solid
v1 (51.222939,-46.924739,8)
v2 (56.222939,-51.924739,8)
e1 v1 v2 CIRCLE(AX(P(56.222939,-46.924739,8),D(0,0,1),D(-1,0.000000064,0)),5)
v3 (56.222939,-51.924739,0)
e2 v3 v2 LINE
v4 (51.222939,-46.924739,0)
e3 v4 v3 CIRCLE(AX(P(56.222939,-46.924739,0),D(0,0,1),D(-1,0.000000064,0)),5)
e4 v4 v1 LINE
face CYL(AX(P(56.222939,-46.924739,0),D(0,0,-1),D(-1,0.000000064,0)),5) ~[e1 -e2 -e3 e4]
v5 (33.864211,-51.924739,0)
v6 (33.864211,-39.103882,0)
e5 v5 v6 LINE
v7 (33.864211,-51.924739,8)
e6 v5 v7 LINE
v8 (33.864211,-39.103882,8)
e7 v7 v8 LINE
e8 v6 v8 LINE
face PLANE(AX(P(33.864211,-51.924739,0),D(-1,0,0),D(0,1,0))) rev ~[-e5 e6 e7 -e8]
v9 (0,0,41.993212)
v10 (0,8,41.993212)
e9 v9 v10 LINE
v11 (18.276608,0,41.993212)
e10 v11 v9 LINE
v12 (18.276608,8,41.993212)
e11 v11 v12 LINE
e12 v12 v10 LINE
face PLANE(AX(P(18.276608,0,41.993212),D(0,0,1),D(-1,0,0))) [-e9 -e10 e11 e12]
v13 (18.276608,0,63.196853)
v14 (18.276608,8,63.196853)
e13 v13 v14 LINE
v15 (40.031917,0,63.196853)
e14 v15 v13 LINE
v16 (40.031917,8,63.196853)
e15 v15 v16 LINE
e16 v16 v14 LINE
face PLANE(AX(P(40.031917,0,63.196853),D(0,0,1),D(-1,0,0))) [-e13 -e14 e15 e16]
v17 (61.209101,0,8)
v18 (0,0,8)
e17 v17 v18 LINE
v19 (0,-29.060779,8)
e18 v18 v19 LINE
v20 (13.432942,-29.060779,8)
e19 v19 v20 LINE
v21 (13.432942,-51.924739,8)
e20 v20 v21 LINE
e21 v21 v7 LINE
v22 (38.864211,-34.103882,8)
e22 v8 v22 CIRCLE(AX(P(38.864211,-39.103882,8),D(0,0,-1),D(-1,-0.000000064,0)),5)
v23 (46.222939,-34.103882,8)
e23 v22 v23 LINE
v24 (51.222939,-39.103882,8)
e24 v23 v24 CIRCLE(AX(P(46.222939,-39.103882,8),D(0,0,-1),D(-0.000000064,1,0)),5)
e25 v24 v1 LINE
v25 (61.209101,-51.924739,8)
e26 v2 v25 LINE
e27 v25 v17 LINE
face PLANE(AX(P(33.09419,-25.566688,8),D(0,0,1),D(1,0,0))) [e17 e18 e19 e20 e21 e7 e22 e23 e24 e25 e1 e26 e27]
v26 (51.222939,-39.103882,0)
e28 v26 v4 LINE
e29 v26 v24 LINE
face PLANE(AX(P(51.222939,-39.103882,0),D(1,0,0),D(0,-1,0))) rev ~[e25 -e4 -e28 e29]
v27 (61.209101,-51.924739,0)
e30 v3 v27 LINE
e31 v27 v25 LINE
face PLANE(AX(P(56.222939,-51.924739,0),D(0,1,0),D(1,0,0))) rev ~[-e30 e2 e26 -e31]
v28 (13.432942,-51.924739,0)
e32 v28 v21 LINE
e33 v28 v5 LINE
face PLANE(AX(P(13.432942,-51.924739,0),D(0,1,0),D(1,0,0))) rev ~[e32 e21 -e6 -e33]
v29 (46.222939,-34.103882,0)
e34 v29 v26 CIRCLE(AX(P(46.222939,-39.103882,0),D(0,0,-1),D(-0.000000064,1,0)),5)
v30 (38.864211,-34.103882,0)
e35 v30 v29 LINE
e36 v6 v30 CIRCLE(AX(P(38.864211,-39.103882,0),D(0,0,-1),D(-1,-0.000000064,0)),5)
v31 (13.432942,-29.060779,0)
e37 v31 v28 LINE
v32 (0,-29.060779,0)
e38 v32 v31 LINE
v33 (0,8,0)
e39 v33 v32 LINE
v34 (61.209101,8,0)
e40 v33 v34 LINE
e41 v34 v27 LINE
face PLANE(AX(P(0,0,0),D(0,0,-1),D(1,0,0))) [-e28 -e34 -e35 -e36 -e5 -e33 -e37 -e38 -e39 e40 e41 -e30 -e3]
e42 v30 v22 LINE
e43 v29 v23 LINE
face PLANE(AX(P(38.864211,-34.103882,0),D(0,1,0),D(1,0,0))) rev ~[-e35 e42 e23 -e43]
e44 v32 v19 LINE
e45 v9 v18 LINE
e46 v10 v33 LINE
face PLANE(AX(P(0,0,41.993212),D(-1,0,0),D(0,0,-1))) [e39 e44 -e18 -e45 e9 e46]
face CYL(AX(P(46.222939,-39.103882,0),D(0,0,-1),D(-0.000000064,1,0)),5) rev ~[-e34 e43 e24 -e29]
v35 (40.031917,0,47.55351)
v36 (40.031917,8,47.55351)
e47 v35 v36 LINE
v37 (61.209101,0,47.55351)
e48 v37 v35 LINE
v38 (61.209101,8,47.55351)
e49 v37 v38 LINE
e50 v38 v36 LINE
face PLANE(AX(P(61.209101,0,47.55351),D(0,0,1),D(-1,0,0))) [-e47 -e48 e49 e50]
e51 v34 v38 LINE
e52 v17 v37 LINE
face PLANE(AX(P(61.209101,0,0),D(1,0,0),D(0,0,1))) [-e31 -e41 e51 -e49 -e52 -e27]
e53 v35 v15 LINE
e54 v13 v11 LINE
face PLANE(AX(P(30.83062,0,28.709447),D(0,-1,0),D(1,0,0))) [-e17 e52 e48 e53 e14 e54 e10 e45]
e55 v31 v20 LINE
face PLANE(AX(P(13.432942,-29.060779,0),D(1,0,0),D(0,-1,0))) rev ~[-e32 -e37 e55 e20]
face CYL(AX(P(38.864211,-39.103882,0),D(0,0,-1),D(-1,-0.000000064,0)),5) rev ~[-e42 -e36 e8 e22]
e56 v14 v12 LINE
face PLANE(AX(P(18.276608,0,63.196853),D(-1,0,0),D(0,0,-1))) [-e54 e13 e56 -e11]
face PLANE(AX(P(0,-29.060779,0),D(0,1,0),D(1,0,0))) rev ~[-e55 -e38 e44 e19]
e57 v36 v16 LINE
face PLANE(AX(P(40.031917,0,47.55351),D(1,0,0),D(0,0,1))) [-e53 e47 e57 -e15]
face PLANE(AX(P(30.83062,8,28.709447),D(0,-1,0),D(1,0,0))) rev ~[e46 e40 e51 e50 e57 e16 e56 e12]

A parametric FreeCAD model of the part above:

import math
import FreeCAD as App
import Part
import Sketcher
Q = App.Units.Quantity

doc = App.newDocument("Part")
params = doc.addObject("Spreadsheet::Sheet", "Params")
for row, (alias, value) in enumerate([
    ("sketch1_radius", "5 mm"),
    ("pad1_length", "8 mm"),
    ("pad2_length", "8 mm"),
], start=1):
    params.set(f"A{row}", alias)
    params.set(f"B{row}", "=" + value)
    params.setAlias(f"B{row}", alias)

body = doc.addObject("PartDesign::Body", "Body")

sketch1 = body.newObject("Sketcher::SketchObject", "Sketch")
sketch1.AttachmentSupport = (doc.getObject("XY_Plane"), [""])
sketch1.MapMode = "FlatFace"
sketch1.addGeometry([
    Part.LineSegment(App.Vector(61.2, 0, 0), App.Vector(0, 0, 0)),
    Part.LineSegment(App.Vector(0, 0, 0), App.Vector(0, -29.1, 0)),
    Part.LineSegment(App.Vector(0, -29.1, 0), App.Vector(13.4, -29.1, 0)),
    Part.LineSegment(App.Vector(13.4, -29.1, 0), App.Vector(13.4, -51.9, 0)),
    Part.LineSegment(App.Vector(13.4, -51.9, 0), App.Vector(33.9, -51.9, 0)),
    Part.LineSegment(App.Vector(33.9, -51.9, 0), App.Vector(33.9, -39.1, 0)),
    Part.ArcOfCircle(Part.Circle(App.Vector(38.9, -39.1, 0), App.Vector(0, 0, 1), 5), math.radians(90), math.radians(180)),
    Part.LineSegment(App.Vector(38.9, -34.1, 0), App.Vector(46.2, -34.1, 0)),
    Part.ArcOfCircle(Part.Circle(App.Vector(46.2, -39.1, 0), App.Vector(0, 0, 1), 5), math.radians(0), math.radians(90)),
    Part.LineSegment(App.Vector(51.2, -39.1, 0), App.Vector(51.2, -46.9, 0)),
    Part.ArcOfCircle(Part.Circle(App.Vector(56.2, -46.9, 0), App.Vector(0, 0, 1), 5), math.radians(180), math.radians(270)),
    Part.LineSegment(App.Vector(56.2, -51.9, 0), App.Vector(61.2, -51.9, 0)),
    Part.LineSegment(App.Vector(61.2, -51.9, 0), App.Vector(61.2, 0, 0)),
], False)
sketch1.addConstraint([
    Sketcher.Constraint("Coincident", 0, 2, 1, 1),
    Sketcher.Constraint("Coincident", 1, 2, 2, 1),
    Sketcher.Constraint("Coincident", 2, 2, 3, 1),
    Sketcher.Constraint("Coincident", 3, 2, 4, 1),
    Sketcher.Constraint("Coincident", 4, 2, 5, 1),
    Sketcher.Constraint("Tangent", 5, 2, 6, 2),
    Sketcher.Constraint("Tangent", 6, 1, 7, 1),
    Sketcher.Constraint("Tangent", 7, 2, 8, 2),
    Sketcher.Constraint("Tangent", 8, 1, 9, 1),
    Sketcher.Constraint("Tangent", 9, 2, 10, 1),
    Sketcher.Constraint("Tangent", 10, 2, 11, 1),
    Sketcher.Constraint("Coincident", 11, 2, 12, 1),
    Sketcher.Constraint("Coincident", 12, 2, 0, 1),
    Sketcher.Constraint("Horizontal", 0),
    Sketcher.Constraint("Vertical", 1),
    Sketcher.Constraint("Horizontal", 2),
    Sketcher.Constraint("Vertical", 3),
    Sketcher.Constraint("Horizontal", 4),
    Sketcher.Constraint("Vertical", 5),
    Sketcher.Constraint("Horizontal", 7),
    Sketcher.Constraint("Vertical", 9),
    Sketcher.Constraint("Horizontal", 11),
    Sketcher.Constraint("Vertical", 12),
    Sketcher.Constraint("Coincident", 0, 2, -1, 1),
    Sketcher.Constraint("Equal", 6, 8),
    Sketcher.Constraint("Equal", 8, 10),
    Sketcher.Constraint("Horizontal", 4, 2, 10, 2),
    Sketcher.Constraint("Radius", 6, Q("5 mm")),
    Sketcher.Constraint("DistanceX", 0, 2, 0, 1, Q("61.209101 mm")),
    Sketcher.Constraint("DistanceX", 4, 1, 4, 2, Q("20.431269 mm")),
    Sketcher.Constraint("DistanceY", 1, 2, 1, 1, Q("29.060779 mm")),
    Sketcher.Constraint("DistanceY", 3, 2, 3, 1, Q("22.86396 mm")),
    Sketcher.Constraint("DistanceX", 2, 1, 2, 2, Q("13.432942 mm")),
    Sketcher.Constraint("DistanceX", 7, 1, 7, 2, Q("7.358728 mm")),
    Sketcher.Constraint("DistanceY", 5, 1, 5, 2, Q("12.820857 mm")),
])
sketch1.setExpression("Constraints[27]", "Params.sketch1_radius")
pad1 = body.newObject("PartDesign::Pad", "Pad")
pad1.Profile = sketch1
pad1.setExpression("Length", "Params.pad1_length")

sketch2 = body.newObject("Sketcher::SketchObject", "Sketch001")
sketch2.AttachmentSupport = (doc.getObject("XZ_Plane"), [""])
sketch2.MapMode = "FlatFace"
sketch2.addGeometry([
    Part.LineSegment(App.Vector(18, 42, 0), App.Vector(0, 42, 0)),
    Part.LineSegment(App.Vector(0, 42, 0), App.Vector(0, 0, 0)),
    Part.LineSegment(App.Vector(0, 0, 0), App.Vector(61, 0, 0)),
    Part.LineSegment(App.Vector(61, 0, 0), App.Vector(61, 48, 0)),
    Part.LineSegment(App.Vector(61, 48, 0), App.Vector(40, 48, 0)),
    Part.LineSegment(App.Vector(40, 48, 0), App.Vector(40, 63, 0)),
    Part.LineSegment(App.Vector(40, 63, 0), App.Vector(18, 63, 0)),
    Part.LineSegment(App.Vector(18, 63, 0), App.Vector(18, 42, 0)),
], False)
sketch2.addConstraint([
    Sketcher.Constraint("Coincident", 0, 2, 1, 1),
    Sketcher.Constraint("Coincident", 1, 2, 2, 1),
    Sketcher.Constraint("Coincident", 2, 2, 3, 1),
    Sketcher.Constraint("Coincident", 3, 2, 4, 1),
    Sketcher.Constraint("Coincident", 4, 2, 5, 1),
    Sketcher.Constraint("Coincident", 5, 2, 6, 1),
    Sketcher.Constraint("Coincident", 6, 2, 7, 1),
    Sketcher.Constraint("Coincident", 7, 2, 0, 1),
    Sketcher.Constraint("Horizontal", 0),
    Sketcher.Constraint("Vertical", 1),
    Sketcher.Constraint("Horizontal", 2),
    Sketcher.Constraint("Vertical", 3),
    Sketcher.Constraint("Horizontal", 4),
    Sketcher.Constraint("Vertical", 5),
    Sketcher.Constraint("Horizontal", 6),
    Sketcher.Constraint("Vertical", 7),
    Sketcher.Constraint("Coincident", 1, 2, -1, 1),
    Sketcher.Constraint("DistanceX", 2, 1, 2, 2, Q("61.209101 mm")),
    Sketcher.Constraint("DistanceX", 6, 2, 6, 1, Q("21.755309 mm")),
    Sketcher.Constraint("DistanceY", 3, 1, 3, 2, Q("47.55351 mm")),
    Sketcher.Constraint("DistanceY", 7, 2, 7, 1, Q("21.203641 mm")),
    Sketcher.Constraint("DistanceY", 0, 2, 3, 2, Q("5.560298 mm")),
    Sketcher.Constraint("DistanceX", 0, 2, 0, 1, Q("18.276608 mm")),
])
pad2 = body.newObject("PartDesign::Pad", "Pad001")
pad2.Profile = sketch2
pad2.setExpression("Length", "Params.pad2_length")
pad2.Reversed = True

doc.recompute()
